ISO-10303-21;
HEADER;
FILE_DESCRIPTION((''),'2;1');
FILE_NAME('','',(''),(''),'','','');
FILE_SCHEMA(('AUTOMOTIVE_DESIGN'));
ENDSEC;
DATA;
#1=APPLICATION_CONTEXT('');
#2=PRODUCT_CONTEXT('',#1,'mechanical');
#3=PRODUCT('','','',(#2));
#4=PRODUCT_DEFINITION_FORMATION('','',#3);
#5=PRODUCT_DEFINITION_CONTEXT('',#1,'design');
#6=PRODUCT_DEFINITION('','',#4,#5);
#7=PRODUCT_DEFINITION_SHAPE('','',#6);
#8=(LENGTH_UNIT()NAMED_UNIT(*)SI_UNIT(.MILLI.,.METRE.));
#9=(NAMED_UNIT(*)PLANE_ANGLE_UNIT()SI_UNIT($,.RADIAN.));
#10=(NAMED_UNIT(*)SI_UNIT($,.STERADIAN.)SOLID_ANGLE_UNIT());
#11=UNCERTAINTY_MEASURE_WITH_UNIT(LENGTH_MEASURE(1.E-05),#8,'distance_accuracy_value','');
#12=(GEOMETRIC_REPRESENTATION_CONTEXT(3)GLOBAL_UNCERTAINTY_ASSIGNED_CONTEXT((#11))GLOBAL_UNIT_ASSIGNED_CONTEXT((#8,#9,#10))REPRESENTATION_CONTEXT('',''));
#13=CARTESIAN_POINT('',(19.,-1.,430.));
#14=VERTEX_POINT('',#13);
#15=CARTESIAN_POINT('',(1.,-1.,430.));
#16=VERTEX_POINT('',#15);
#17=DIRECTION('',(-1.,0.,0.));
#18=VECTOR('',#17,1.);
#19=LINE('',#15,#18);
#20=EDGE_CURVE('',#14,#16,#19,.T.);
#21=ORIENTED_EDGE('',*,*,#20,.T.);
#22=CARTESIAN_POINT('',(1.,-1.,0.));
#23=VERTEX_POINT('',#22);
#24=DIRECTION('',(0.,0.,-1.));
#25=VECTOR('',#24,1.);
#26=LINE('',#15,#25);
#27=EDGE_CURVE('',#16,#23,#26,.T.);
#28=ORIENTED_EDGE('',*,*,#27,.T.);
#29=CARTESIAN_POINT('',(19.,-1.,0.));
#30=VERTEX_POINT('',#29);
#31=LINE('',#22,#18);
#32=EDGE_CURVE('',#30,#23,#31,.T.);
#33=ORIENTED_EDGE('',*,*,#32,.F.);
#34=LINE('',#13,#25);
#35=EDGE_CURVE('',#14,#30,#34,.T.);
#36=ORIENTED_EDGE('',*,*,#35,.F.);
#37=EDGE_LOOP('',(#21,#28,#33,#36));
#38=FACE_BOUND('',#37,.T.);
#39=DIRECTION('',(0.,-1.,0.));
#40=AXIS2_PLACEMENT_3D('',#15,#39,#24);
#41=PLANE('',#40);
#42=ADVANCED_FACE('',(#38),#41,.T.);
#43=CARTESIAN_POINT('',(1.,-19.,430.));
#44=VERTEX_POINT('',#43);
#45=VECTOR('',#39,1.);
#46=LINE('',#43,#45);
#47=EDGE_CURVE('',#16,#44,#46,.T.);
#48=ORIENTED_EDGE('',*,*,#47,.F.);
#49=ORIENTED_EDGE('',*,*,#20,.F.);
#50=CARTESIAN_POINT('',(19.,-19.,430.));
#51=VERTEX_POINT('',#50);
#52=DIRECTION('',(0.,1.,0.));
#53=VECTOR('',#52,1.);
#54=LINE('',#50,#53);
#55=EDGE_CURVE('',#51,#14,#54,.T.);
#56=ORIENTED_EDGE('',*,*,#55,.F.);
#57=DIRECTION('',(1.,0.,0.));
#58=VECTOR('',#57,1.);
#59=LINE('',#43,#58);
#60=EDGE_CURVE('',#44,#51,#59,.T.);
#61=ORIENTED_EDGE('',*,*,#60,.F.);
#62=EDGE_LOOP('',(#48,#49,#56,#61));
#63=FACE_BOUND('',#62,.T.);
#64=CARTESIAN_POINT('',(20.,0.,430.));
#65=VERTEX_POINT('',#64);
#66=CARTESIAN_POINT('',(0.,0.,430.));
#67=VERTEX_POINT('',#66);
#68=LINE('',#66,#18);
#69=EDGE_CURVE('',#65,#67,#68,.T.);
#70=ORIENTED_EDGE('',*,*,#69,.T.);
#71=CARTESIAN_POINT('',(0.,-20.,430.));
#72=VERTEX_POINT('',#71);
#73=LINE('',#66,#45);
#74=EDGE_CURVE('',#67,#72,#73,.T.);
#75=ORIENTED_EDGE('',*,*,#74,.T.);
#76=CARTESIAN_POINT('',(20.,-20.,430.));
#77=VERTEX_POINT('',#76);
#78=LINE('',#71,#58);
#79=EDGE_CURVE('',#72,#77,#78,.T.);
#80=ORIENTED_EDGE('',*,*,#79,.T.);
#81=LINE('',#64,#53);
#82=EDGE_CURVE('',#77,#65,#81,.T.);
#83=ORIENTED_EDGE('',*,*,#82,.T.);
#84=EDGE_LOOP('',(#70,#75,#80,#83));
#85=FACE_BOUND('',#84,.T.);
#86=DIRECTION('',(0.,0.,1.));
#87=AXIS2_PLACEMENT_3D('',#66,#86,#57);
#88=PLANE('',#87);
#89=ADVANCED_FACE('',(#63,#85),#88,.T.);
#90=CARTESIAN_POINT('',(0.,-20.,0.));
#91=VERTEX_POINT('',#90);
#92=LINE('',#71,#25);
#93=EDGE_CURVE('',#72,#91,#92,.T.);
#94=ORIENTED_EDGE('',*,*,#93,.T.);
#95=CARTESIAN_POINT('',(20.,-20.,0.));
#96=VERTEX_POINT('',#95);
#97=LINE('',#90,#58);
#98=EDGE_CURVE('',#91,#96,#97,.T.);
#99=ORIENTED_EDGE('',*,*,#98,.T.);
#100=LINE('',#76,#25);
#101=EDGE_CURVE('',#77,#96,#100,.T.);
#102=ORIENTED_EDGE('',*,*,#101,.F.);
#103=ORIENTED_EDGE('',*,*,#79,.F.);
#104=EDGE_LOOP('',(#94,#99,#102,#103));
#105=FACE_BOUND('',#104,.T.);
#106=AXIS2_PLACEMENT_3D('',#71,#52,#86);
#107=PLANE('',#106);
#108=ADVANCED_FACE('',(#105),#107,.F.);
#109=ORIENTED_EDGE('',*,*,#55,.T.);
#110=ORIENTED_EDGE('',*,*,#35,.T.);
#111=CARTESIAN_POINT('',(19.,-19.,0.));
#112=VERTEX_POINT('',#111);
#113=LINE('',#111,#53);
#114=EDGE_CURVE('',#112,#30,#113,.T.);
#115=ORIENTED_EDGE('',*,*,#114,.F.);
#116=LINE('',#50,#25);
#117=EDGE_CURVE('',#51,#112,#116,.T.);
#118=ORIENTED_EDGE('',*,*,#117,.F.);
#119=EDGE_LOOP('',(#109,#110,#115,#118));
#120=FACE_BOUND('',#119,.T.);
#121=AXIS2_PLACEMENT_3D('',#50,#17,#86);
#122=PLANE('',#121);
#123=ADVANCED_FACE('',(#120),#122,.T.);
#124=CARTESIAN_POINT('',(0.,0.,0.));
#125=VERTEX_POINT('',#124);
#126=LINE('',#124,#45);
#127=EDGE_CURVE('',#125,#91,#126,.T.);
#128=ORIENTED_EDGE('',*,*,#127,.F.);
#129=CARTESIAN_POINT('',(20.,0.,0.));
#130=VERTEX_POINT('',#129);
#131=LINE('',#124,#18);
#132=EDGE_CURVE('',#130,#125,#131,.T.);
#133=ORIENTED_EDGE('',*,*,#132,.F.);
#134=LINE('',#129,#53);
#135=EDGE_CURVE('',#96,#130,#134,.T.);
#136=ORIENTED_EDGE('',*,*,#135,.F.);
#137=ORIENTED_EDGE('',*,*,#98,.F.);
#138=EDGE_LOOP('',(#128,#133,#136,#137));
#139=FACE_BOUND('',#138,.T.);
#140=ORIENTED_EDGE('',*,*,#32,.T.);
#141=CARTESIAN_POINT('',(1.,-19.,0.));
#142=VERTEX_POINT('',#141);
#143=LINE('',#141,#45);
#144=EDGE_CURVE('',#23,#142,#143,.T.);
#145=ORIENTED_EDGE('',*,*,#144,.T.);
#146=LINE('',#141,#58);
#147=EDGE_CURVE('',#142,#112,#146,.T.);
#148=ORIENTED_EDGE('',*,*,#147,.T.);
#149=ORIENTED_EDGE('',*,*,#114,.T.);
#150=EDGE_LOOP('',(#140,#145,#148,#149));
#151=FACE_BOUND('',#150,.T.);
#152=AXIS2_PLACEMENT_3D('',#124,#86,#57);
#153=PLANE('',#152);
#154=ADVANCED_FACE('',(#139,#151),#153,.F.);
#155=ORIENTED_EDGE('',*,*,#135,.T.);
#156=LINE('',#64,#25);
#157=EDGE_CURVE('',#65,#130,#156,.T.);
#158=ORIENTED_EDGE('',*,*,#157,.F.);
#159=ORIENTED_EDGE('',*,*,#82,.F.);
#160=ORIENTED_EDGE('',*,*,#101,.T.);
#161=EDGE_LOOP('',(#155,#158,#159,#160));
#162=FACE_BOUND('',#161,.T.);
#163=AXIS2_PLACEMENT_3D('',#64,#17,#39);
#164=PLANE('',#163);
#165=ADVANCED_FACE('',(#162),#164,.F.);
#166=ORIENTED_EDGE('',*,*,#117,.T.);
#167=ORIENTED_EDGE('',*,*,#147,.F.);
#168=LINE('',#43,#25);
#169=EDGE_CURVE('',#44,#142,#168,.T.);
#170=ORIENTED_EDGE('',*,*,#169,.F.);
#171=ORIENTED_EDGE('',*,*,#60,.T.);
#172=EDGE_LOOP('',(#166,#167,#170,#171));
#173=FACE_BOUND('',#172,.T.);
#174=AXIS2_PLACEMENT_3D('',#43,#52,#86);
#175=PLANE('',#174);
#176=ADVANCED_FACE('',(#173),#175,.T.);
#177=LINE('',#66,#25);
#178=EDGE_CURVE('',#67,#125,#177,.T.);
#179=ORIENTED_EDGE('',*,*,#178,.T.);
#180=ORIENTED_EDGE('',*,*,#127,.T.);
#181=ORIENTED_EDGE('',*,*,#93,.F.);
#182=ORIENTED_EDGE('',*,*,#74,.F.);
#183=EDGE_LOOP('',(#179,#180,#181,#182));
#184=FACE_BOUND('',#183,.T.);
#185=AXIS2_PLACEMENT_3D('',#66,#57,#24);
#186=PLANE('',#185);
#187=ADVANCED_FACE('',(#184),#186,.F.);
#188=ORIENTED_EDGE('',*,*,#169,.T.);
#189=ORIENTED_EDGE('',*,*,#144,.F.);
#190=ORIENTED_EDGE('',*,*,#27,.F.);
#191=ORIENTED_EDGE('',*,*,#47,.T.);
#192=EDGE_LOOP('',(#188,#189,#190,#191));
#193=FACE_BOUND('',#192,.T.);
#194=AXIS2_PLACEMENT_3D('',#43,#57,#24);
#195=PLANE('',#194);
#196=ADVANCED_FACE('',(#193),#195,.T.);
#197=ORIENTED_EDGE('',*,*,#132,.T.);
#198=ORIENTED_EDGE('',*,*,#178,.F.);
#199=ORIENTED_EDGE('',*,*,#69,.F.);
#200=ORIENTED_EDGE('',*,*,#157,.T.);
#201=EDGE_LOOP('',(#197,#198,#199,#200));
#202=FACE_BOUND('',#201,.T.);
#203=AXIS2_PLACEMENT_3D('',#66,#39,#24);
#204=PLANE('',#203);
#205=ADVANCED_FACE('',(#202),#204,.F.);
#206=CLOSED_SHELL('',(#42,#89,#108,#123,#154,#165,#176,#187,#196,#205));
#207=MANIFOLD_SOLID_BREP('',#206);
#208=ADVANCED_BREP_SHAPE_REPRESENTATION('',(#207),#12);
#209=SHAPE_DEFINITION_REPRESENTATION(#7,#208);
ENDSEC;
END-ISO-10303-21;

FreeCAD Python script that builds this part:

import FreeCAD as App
import Part
import Sketcher
Q = App.Units.Quantity

doc = App.newDocument("Part")
body = doc.addObject("PartDesign::Body", "Body")

sketch1 = body.newObject("Sketcher::SketchObject", "Sketch")
sketch1.AttachmentSupport = (doc.getObject("XY_Plane"), [""])
sketch1.MapMode = "FlatFace"
sketch1.addGeometry([
    Part.LineSegment(App.Vector(0, 0, 0), App.Vector(0, -20, 0)),
    Part.LineSegment(App.Vector(0, -20, 0), App.Vector(20, -20, 0)),
    Part.LineSegment(App.Vector(20, -20, 0), App.Vector(20, 0, 0)),
    Part.LineSegment(App.Vector(20, 0, 0), App.Vector(0, 0, 0)),
    Part.LineSegment(App.Vector(19, -19, 0), App.Vector(1, -19, 0)),
    Part.LineSegment(App.Vector(1, -19, 0), App.Vector(1, -1, 0)),
    Part.LineSegment(App.Vector(1, -1, 0), App.Vector(19, -1, 0)),
    Part.LineSegment(App.Vector(19, -1, 0), App.Vector(19, -19, 0)),
], False)
sketch1.addConstraint([
    Sketcher.Constraint("Coincident", 0, 2, 1, 1),
    Sketcher.Constraint("Coincident", 1, 2, 2, 1),
    Sketcher.Constraint("Coincident", 2, 2, 3, 1),
    Sketcher.Constraint("Coincident", 3, 2, 0, 1),
    Sketcher.Constraint("Coincident", 4, 2, 5, 1),
    Sketcher.Constraint("Coincident", 5, 2, 6, 1),
    Sketcher.Constraint("Coincident", 6, 2, 7, 1),
    Sketcher.Constraint("Coincident", 7, 2, 4, 1),
    Sketcher.Constraint("Vertical", 0),
    Sketcher.Constraint("Horizontal", 1),
    Sketcher.Constraint("Vertical", 2),
    Sketcher.Constraint("Horizontal", 3),
    Sketcher.Constraint("Horizontal", 4),
    Sketcher.Constraint("Vertical", 5),
    Sketcher.Constraint("Horizontal", 6),
    Sketcher.Constraint("Vertical", 7),
    Sketcher.Constraint("Coincident", 3, 2, -1, 1),
    Sketcher.Constraint("Equal", 3, 0),
    Sketcher.Constraint("Equal", 6, 5),
    Sketcher.Constraint("DistanceX", 1, 1, 1, 2, Q("20 mm")),
    Sketcher.Constraint("DistanceX", 4, 2, 4, 1, Q("18 mm")),
    Sketcher.Constraint("DistanceX", -1, 1, 4, 2, Q("1 mm")),
    Sketcher.Constraint("DistanceY", 4, 2, -1, 1, Q("19 mm")),
])
pad1 = body.newObject("PartDesign::Pad", "Pad")
pad1.Profile = sketch1
pad1.Length = 430

doc.recompute()
